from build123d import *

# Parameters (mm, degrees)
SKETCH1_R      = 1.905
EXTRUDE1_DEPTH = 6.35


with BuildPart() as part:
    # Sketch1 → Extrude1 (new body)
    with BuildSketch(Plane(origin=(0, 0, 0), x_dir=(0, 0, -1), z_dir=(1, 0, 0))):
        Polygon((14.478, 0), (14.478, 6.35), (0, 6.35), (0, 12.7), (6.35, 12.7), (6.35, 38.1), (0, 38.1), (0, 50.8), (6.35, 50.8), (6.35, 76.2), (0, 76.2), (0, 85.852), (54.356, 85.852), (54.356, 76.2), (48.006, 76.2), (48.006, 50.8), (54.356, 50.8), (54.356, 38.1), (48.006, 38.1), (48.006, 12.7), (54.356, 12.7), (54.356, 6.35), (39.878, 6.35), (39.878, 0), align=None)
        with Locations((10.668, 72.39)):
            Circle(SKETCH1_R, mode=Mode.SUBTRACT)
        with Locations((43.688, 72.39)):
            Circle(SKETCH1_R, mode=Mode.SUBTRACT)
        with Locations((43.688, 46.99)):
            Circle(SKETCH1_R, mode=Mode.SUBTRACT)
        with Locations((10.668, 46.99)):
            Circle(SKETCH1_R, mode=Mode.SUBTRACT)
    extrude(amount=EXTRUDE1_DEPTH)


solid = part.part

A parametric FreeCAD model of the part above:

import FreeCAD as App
import Part
import Sketcher
Q = App.Units.Quantity


def add_polygon(sketch, points):
    """Adds a closed chain of lines whose ends are joined by coincident constraints."""
    first, n = sketch.GeometryCount, len(points)
    for a, b in zip(points, points[1:] + points[:1]):
        sketch.addGeometry(Part.LineSegment(App.Vector(*a, 0), App.Vector(*b, 0)), False)
    for i in range(n):
        sketch.addConstraint(Sketcher.Constraint("Coincident", first + i, 2, first + (i + 1) % n, 1))

doc = App.newDocument("Part")
body = doc.addObject("PartDesign::Body", "Body")

# Sketch on YZ plane
sketch1 = doc.addObject("Sketcher::SketchObject", "Sketch")
body.addObject(sketch1)
sketch1.AttachmentSupport = (doc.YZ_Plane, [""])
sketch1.MapMode = "FlatFace"
add_polygon(sketch1, [(6.3, -14.5), (0, -14.5), (0, -39.9), (6.3, -39.9), (6.3, -54.4), (12.7, -54.4), (12.7, -48), (38.1, -48), (38.1, -54.4), (50.8, -54.4), (50.8, -48), (76.2, -48), (76.2, -54.4), (85.9, -54.4), (85.9, 0), (76.2, 0), (76.2, -6.3), (50.8, -6.3), (50.8, 0), (38.1, 0), (38.1, -6.3), (12.7, -6.3), (12.7, 0), (6.3, 0)])  # lines 0-23
sketch1.addGeometry(Part.Circle(App.Vector(47, -43.7, 0), App.Vector(0, 0, 1), 1.9), False)  # 24
sketch1.addGeometry(Part.Circle(App.Vector(47, -10.7, 0), App.Vector(0, 0, 1), 1.9), False)  # 25
sketch1.addGeometry(Part.Circle(App.Vector(72.4, -43.7, 0), App.Vector(0, 0, 1), 1.9), False)  # 26
sketch1.addGeometry(Part.Circle(App.Vector(72.4, -10.7, 0), App.Vector(0, 0, 1), 1.9), False)  # 27
sketch1.addConstraint(Sketcher.Constraint("Horizontal", 0))
sketch1.addConstraint(Sketcher.Constraint("Vertical", 1))
sketch1.addConstraint(Sketcher.Constraint("Horizontal", 2))
sketch1.addConstraint(Sketcher.Constraint("Vertical", 3))
sketch1.addConstraint(Sketcher.Constraint("Horizontal", 4))
sketch1.addConstraint(Sketcher.Constraint("Vertical", 5))
sketch1.addConstraint(Sketcher.Constraint("Horizontal", 6))
sketch1.addConstraint(Sketcher.Constraint("Vertical", 7))
sketch1.addConstraint(Sketcher.Constraint("Horizontal", 8))
sketch1.addConstraint(Sketcher.Constraint("Vertical", 9))
sketch1.addConstraint(Sketcher.Constraint("Horizontal", 10))
sketch1.addConstraint(Sketcher.Constraint("Vertical", 11))
sketch1.addConstraint(Sketcher.Constraint("Horizontal", 12))
sketch1.addConstraint(Sketcher.Constraint("Vertical", 13))
sketch1.addConstraint(Sketcher.Constraint("Horizontal", 14))
sketch1.addConstraint(Sketcher.Constraint("Vertical", 15))
sketch1.addConstraint(Sketcher.Constraint("Horizontal", 16))
sketch1.addConstraint(Sketcher.Constraint("Vertical", 17))
sketch1.addConstraint(Sketcher.Constraint("Horizontal", 18))
sketch1.addConstraint(Sketcher.Constraint("Vertical", 19))
sketch1.addConstraint(Sketcher.Constraint("Horizontal", 20))
sketch1.addConstraint(Sketcher.Constraint("Vertical", 21))
sketch1.addConstraint(Sketcher.Constraint("Horizontal", 22))
sketch1.addConstraint(Sketcher.Constraint("Vertical", 23))
sketch1.addConstraint(Sketcher.Constraint("Equal", 24, 25))
sketch1.addConstraint(Sketcher.Constraint("Equal", 25, 26))
sketch1.addConstraint(Sketcher.Constraint("Equal", 26, 27))
sketch1.addConstraint(Sketcher.Constraint("PointOnObject", 0, 2, -2))
sketch1.addConstraint(Sketcher.Constraint("PointOnObject", 13, 2, -1))
sketch1.addConstraint(Sketcher.Constraint("PointOnObject", 17, 2, -1))
sketch1.addConstraint(Sketcher.Constraint("PointOnObject", 21, 2, -1))
sketch1.addConstraint(Sketcher.Constraint("Horizontal", 24, 3, 26, 3))
sketch1.addConstraint(Sketcher.Constraint("Horizontal", 25, 3, 27, 3))
sketch1.addConstraint(Sketcher.Constraint("Horizontal", 4, 2, 7, 2))
sketch1.addConstraint(Sketcher.Constraint("Horizontal", 6, 2, 9, 2))
sketch1.addConstraint(Sketcher.Constraint("Horizontal", 8, 2, 11, 2))
sketch1.addConstraint(Sketcher.Constraint("Horizontal", 16, 2, 19, 2))
sketch1.addConstraint(Sketcher.Constraint("Vertical", 24, 3, 25, 3))
sketch1.addConstraint(Sketcher.Constraint("Vertical", 26, 3, 27, 3))
sketch1.addConstraint(Sketcher.Constraint("Vertical", 11, 2, 14, 2))
sketch1.addConstraint(Sketcher.Constraint("Vertical", 9, 2, 16, 2))
sketch1.addConstraint(Sketcher.Constraint("Vertical", 7, 2, 18, 2))
sketch1.addConstraint(Sketcher.Constraint("Vertical", 5, 2, 20, 2))
sketch1.addConstraint(Sketcher.Constraint("Vertical", 3, 2, 22, 2))
sketch1.addConstraint(Sketcher.Constraint("Equal", 2, 4))
sketch1.addConstraint(Sketcher.Constraint("Equal", 6, 10))
sketch1.addConstraint(Sketcher.Constraint("Equal", 20, 1))
sketch1.addConstraint(Sketcher.Constraint("Equal", 22, 5))
sketch1.addConstraint(Sketcher.Constraint("Equal", 11, 15))
sketch1.addConstraint(Sketcher.Constraint("Equal", 3, 23))
sketch1.addConstraint(Sketcher.Constraint("Diameter", 24, Q("0.15 in")))
sketch1.addConstraint(Sketcher.Constraint("DistanceX", 6, 1, 6, 2, Q("1 in")))
sketch1.addConstraint(Sketcher.Constraint("DistanceX", 8, 1, 8, 2, Q("0.5 in")))
sketch1.addConstraint(Sketcher.Constraint("DistanceX", -1, 1, 8, 2, Q("2 in")))
sketch1.addConstraint(Sketcher.Constraint("DistanceX", 24, 3, 26, 3, Q("1 in")))
sketch1.addConstraint(Sketcher.Constraint("DistanceX", 12, 1, 12, 2, Q("0.38 in")))
sketch1.addConstraint(Sketcher.Constraint("DistanceY", 3, 2, 3, 1, Q("0.57 in")))
sketch1.addConstraint(Sketcher.Constraint("DistanceY", 24, 3, 25, 3, Q("1.3 in")))
sketch1.addConstraint(Sketcher.Constraint("DistanceX", 2, 2, 24, 3, Q("1.6 in")))
sketch1.addConstraint(Sketcher.Constraint("DistanceY", 24, 3, -1, 1, Q("1.72 in")))
pad1 = doc.addObject("PartDesign::Pad", "Pad")
body.addObject(pad1)
pad1.Profile = sketch1
pad1.Length = Q("0.25 in")

doc.recompute()
